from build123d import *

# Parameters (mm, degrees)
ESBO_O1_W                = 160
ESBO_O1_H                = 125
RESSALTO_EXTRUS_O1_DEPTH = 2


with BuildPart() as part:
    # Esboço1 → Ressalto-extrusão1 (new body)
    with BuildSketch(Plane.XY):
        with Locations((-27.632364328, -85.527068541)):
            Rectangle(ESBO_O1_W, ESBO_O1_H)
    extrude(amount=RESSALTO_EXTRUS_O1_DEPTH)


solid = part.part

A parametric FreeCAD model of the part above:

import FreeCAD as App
import Part
import Sketcher
from FreeCAD import Vector

doc = App.newDocument("Part")
body = doc.addObject("PartDesign::Body", "Body")

# Sketch on XY plane
sketch1 = body.newObject("Sketcher::SketchObject", "Sketch")
sketch1.AttachmentSupport = (doc.getObject("XY_Plane"), [""])
sketch1.MapMode = "FlatFace"
sketch1.addGeometry(Part.LineSegment(Vector(-108, -23, 0), Vector(-108, -148, 0)), False)
sketch1.addGeometry(Part.LineSegment(Vector(-108, -148, 0), Vector(52, -148, 0)), False)
sketch1.addGeometry(Part.LineSegment(Vector(52, -148, 0), Vector(52, -23, 0)), False)
sketch1.addGeometry(Part.LineSegment(Vector(52, -23, 0), Vector(-108, -23, 0)), False)
sketch1.addConstraint(Sketcher.Constraint("Coincident", 0, 2, 1, 1))
sketch1.addConstraint(Sketcher.Constraint("Coincident", 1, 2, 2, 1))
sketch1.addConstraint(Sketcher.Constraint("Coincident", 2, 2, 3, 1))
sketch1.addConstraint(Sketcher.Constraint("Coincident", 3, 2, 0, 1))
sketch1.addConstraint(Sketcher.Constraint("Vertical", 0))
sketch1.addConstraint(Sketcher.Constraint("Horizontal", 1))
sketch1.addConstraint(Sketcher.Constraint("Vertical", 2))
sketch1.addConstraint(Sketcher.Constraint("Horizontal", 3))
sketch1.addConstraint(Sketcher.Constraint("DistanceX", 1, 1, 1, 2, 160.0))
sketch1.addConstraint(Sketcher.Constraint("DistanceY", 0, 2, 0, 1, 125.0))
sketch1.addConstraint(Sketcher.Constraint("DistanceY", 0, 2, -1, 1, 148.027069))
sketch1.addConstraint(Sketcher.Constraint("DistanceX", 0, 2, -1, 1, 107.632364))
pad1 = body.newObject("PartDesign::Pad", "Pad")
pad1.Profile = sketch1
pad1.Length = 2

doc.recompute()
